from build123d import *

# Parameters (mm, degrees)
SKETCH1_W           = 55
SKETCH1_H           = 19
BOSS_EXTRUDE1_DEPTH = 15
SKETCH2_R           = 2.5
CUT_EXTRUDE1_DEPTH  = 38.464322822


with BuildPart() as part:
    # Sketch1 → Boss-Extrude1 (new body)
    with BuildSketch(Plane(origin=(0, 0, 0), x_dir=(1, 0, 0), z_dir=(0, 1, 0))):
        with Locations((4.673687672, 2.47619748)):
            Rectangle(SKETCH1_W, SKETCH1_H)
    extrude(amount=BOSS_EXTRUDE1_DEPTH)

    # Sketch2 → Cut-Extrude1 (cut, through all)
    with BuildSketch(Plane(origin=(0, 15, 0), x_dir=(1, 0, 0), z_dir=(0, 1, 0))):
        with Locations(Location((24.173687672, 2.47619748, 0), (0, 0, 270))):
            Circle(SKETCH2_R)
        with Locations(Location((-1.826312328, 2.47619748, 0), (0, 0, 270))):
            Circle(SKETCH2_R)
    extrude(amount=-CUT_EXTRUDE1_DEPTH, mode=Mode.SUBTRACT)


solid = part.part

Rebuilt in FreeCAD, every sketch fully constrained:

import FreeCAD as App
import Part
import Sketcher
from FreeCAD import Vector

doc = App.newDocument("Part")
body = doc.addObject("PartDesign::Body", "Body")

sketch1 = body.newObject("Sketcher::SketchObject", "Sketch")
sketch1.AttachmentSupport = (doc.getObject("XZ_Plane"), [""])
sketch1.MapMode = "FlatFace"
sketch1.addGeometry([
    Part.LineSegment(Vector(-22.826312, -11.976197, 0), Vector(-22.826312, 7.023803, 0)),
    Part.LineSegment(Vector(-22.826312, 7.023803, 0), Vector(32.173688, 7.023803, 0)),
    Part.LineSegment(Vector(32.173688, 7.023803, 0), Vector(32.173688, -11.976197, 0)),
    Part.LineSegment(Vector(32.173688, -11.976197, 0), Vector(-22.826312, -11.976197, 0)),
], False)
sketch1.addConstraint([
    Sketcher.Constraint("Coincident", 0, 2, 1, 1),
    Sketcher.Constraint("Coincident", 1, 2, 2, 1),
    Sketcher.Constraint("Coincident", 2, 2, 3, 1),
    Sketcher.Constraint("Coincident", 3, 2, 0, 1),
    Sketcher.Constraint("Vertical", 0),
    Sketcher.Constraint("Horizontal", 1),
    Sketcher.Constraint("Vertical", 2),
    Sketcher.Constraint("Horizontal", 3),
    Sketcher.Constraint("DistanceX", 1, 1, 1, 2, 55.0),
    Sketcher.Constraint("DistanceY", 0, 1, 0, 2, 19.0),
    Sketcher.Constraint("DistanceX", 0, 2, -1, 1, 22.826312),
    Sketcher.Constraint("DistanceY", -1, 1, 0, 2, 7.023803),
])
pad1 = body.newObject("PartDesign::Pad", "Pad")
pad1.Profile = sketch1
pad1.Length = 15
pad1.Reversed = True

sketch2 = body.newObject("Sketcher::SketchObject", "Sketch001")
sketch2.AttachmentSupport = (doc.getObject("XZ_Plane"), [""])
sketch2.MapMode = "FlatFace"
sketch2.AttachmentOffset = App.Placement(Vector(0, 0, -15), App.Rotation())
sketch2.addGeometry([
    Part.Circle(Vector(24.173688, -2.476197, 0), Vector(0, 0, 1), 2.5),
    Part.Circle(Vector(-1.826312, -2.476197, 0), Vector(0, 0, 1), 2.5),
], False)
sketch2.addConstraint([
    Sketcher.Constraint("Equal", 0, 1),
    Sketcher.Constraint("Horizontal", 0, 3, 1, 3),
    Sketcher.Constraint("Diameter", 0, 5.0),
    Sketcher.Constraint("DistanceX", 1, 3, 0, 3, 26.0),
    Sketcher.Constraint("DistanceX", -1, 1, 0, 3, 24.173688),
    Sketcher.Constraint("DistanceY", 0, 3, -1, 1, 2.476197),
])
pocket1 = body.newObject("PartDesign::Pocket", "Pocket")
pocket1.Profile = sketch2
pocket1.Type = "ThroughAll"
pocket1.Reversed = True

doc.recompute()
